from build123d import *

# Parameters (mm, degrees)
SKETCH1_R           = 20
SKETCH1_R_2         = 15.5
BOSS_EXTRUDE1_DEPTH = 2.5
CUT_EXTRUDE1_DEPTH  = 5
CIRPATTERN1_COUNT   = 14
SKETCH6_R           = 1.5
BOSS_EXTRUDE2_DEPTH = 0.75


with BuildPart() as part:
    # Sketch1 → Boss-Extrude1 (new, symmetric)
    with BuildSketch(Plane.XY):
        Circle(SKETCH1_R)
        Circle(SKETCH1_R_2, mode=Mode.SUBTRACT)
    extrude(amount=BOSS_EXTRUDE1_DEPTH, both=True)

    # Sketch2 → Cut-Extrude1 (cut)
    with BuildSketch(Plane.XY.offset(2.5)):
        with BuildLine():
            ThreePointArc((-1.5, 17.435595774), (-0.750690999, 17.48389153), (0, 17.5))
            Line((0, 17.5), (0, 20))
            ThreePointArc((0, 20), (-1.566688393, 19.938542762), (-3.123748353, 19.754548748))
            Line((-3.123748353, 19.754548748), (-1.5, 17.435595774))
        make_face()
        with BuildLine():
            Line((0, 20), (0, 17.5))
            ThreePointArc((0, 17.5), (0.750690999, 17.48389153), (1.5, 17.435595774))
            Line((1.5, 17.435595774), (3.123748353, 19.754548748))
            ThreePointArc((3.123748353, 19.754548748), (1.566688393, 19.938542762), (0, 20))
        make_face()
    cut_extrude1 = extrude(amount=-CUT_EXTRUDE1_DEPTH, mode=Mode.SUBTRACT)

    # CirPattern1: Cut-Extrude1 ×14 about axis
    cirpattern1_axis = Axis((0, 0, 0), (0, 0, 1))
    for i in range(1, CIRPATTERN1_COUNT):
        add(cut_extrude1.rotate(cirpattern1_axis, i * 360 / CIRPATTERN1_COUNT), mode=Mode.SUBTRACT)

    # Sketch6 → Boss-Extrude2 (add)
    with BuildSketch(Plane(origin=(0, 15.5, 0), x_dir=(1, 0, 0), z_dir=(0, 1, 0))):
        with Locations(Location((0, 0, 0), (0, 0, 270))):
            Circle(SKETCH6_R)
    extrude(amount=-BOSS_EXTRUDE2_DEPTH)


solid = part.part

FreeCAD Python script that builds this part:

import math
import FreeCAD as App
import Part
import Sketcher
Q = App.Units.Quantity

doc = App.newDocument("Part")
body = doc.addObject("PartDesign::Body", "Body")

# Sketch on XY plane
sketch1 = doc.addObject("Sketcher::SketchObject", "Sketch")
body.addObject(sketch1)
sketch1.AttachmentSupport = (doc.XY_Plane, [""])
sketch1.MapMode = "FlatFace"
sketch1.addGeometry([
    Part.Circle(App.Vector(0, 0, 0), App.Vector(0, 0, 1), 20),
    Part.Circle(App.Vector(0, 0, 0), App.Vector(0, 0, 1), 16),
], False)
sketch1.addConstraint([
    Sketcher.Constraint("Coincident", 0, 3, -1, 1),
    Sketcher.Constraint("Coincident", 1, 3, -1, 1),
    Sketcher.Constraint("Diameter", 0, Q("40 mm")),
    Sketcher.Constraint("Diameter", 1, Q("31 mm")),
])
pad1 = doc.addObject("PartDesign::Pad", "Pad")
body.addObject(pad1)
pad1.Profile = sketch1
pad1.Length = 5
pad1.Midplane = True

# Sketch on XY plane
sketch2 = doc.addObject("Sketcher::SketchObject", "Sketch001")
body.addObject(sketch2)
sketch2.AttachmentSupport = (doc.XY_Plane, [""])
sketch2.MapMode = "FlatFace"
sketch2.AttachmentOffset = App.Placement(App.Vector(0, 0, 2.5), App.Rotation())
sketch2.addGeometry([
    Part.ArcOfCircle(Part.Circle(App.Vector(0, 0, 0), App.Vector(0, 0, 1), 17.5), math.radians(90), math.radians(94.92)),  # 0
    Part.ArcOfCircle(Part.Circle(App.Vector(0, 0, 0), App.Vector(0, 0, 1), 17.5), math.radians(85.08), math.radians(90)),  # 1
    Part.LineSegment(App.Vector(1.5, 17.4, 0), App.Vector(3.1, 19.8, 0)),  # 2
    Part.ArcOfCircle(Part.Circle(App.Vector(0, 0, 0), App.Vector(0, 0, 1), 20), math.radians(81.01), math.radians(90)),  # 3
    Part.ArcOfCircle(Part.Circle(App.Vector(0, 0, 0), App.Vector(0, 0, 1), 20), math.radians(90), math.radians(98.99)),  # 4
    Part.LineSegment(App.Vector(-3.1, 19.8, 0), App.Vector(-1.5, 17.4, 0)),  # 5
], False)
sketch2.addConstraint([
    Sketcher.Constraint("Tangent", 0, 1, 1, 2),
    Sketcher.Constraint("Coincident", 1, 1, 2, 1),
    Sketcher.Constraint("Coincident", 2, 2, 3, 1),
    Sketcher.Constraint("Tangent", 3, 2, 4, 1),
    Sketcher.Constraint("Coincident", 4, 2, 5, 1),
    Sketcher.Constraint("Coincident", 5, 2, 0, 2),
    Sketcher.Constraint("Coincident", 0, 3, -1, 1),
    Sketcher.Constraint("Coincident", 3, 3, -1, 1),
    Sketcher.Constraint("Equal", 0, 1),
    Sketcher.Constraint("Equal", 3, 4),
    Sketcher.Constraint("PointOnObject", 0, 1, -2),
    Sketcher.Constraint("PointOnObject", 3, 2, -2),
    Sketcher.Constraint("Horizontal", 2, 2, 4, 2),
    Sketcher.Constraint("Horizontal", 1, 1, 5, 2),
    Sketcher.Constraint("Radius", 3, Q("20 mm")),
    Sketcher.Constraint("Radius", 0, Q("17.5 mm")),
    Sketcher.Constraint("Angle", 2, Q("55 deg")),
    Sketcher.Constraint("DistanceX", 5, 2, 1, 1, Q("3 mm")),
])
pocket1 = doc.addObject("PartDesign::Pocket", "Pocket")
body.addObject(pocket1)
pocket1.Profile = sketch2
pocket1.Length = 5
doc.recompute()

polarpattern = doc.addObject("PartDesign::PolarPattern", "PolarPattern")
body.addObject(polarpattern)
polarpattern.Originals = [pocket1]
polarpattern.Axis = (doc.Z_Axis, [""])
polarpattern.Angle = 360
polarpattern.Occurrences = 14
body.Tip = polarpattern

# Sketch on XZ plane
sketch3 = doc.addObject("Sketcher::SketchObject", "Sketch002")
body.addObject(sketch3)
sketch3.AttachmentSupport = (doc.XZ_Plane, [""])
sketch3.MapMode = "FlatFace"
sketch3.AttachmentOffset = App.Placement(App.Vector(0, 0, -15.5), App.Rotation())
sketch3.addGeometry(Part.Circle(App.Vector(0, 0, 0), App.Vector(0, 0, 1), 1.5), False)
sketch3.addConstraint([
    Sketcher.Constraint("Coincident", 0, 3, -1, 1),
    Sketcher.Constraint("Diameter", 0, Q("3 mm")),
])
pad2 = doc.addObject("PartDesign::Pad", "Pad001")
body.addObject(pad2)
pad2.Profile = sketch3
pad2.Length = 0.75

doc.recompute()
